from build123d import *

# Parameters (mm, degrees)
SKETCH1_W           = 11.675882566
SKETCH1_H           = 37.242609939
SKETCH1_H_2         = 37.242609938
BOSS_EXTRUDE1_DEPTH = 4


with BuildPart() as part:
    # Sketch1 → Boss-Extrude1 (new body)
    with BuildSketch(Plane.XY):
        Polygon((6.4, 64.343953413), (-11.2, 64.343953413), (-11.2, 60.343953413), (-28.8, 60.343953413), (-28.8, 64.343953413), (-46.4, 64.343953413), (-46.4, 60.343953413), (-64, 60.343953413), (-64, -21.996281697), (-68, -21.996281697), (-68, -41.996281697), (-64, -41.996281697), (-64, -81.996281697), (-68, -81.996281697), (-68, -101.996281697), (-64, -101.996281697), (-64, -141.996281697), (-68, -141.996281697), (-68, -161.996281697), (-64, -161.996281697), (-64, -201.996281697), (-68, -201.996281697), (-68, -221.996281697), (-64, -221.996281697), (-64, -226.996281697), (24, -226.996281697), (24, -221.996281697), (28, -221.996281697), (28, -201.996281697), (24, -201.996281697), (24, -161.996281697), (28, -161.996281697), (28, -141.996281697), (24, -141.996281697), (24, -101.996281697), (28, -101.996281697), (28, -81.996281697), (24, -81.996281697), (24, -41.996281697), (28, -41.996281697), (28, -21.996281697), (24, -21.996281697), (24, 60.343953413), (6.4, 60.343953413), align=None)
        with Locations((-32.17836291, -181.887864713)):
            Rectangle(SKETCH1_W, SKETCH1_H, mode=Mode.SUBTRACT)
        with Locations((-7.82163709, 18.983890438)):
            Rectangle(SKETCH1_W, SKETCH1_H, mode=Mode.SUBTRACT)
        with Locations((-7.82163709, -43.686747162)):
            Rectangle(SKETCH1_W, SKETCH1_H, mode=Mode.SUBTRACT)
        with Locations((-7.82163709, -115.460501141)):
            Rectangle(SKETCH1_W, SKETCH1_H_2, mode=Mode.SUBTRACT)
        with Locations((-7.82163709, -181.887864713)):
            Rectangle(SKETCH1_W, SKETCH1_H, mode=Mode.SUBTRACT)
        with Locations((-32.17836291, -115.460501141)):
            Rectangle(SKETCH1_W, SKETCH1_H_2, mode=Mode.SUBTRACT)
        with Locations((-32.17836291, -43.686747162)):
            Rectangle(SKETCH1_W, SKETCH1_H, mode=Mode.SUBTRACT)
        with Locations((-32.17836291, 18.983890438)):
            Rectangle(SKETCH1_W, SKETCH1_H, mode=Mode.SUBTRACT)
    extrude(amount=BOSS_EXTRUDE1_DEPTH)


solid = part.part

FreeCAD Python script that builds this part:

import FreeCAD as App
import Part
import Sketcher
Q = App.Units.Quantity

doc = App.newDocument("Part")
body = doc.addObject("PartDesign::Body", "Body")

sketch1 = body.newObject("Sketcher::SketchObject", "Sketch")
sketch1.AttachmentSupport = (doc.getObject("XY_Plane"), [""])
sketch1.MapMode = "FlatFace"
sketch1.addGeometry(Part.LineSegment(App.Vector(6.4, 64.3, 0), App.Vector(-11.2, 64.3, 0)), False)
sketch1.addGeometry(Part.LineSegment(App.Vector(-11.2, 64.3, 0), App.Vector(-11.2, 60.3, 0)), False)
sketch1.addGeometry(Part.LineSegment(App.Vector(-11.2, 60.3, 0), App.Vector(-28.8, 60.3, 0)), False)
sketch1.addGeometry(Part.LineSegment(App.Vector(-28.8, 60.3, 0), App.Vector(-28.8, 64.3, 0)), False)
sketch1.addGeometry(Part.LineSegment(App.Vector(-28.8, 64.3, 0), App.Vector(-46.4, 64.3, 0)), False)
sketch1.addGeometry(Part.LineSegment(App.Vector(-46.4, 64.3, 0), App.Vector(-46.4, 60.3, 0)), False)
sketch1.addGeometry(Part.LineSegment(App.Vector(-46.4, 60.3, 0), App.Vector(-64, 60.3, 0)), False)
sketch1.addGeometry(Part.LineSegment(App.Vector(-64, 60.3, 0), App.Vector(-64, -22, 0)), False)
sketch1.addGeometry(Part.LineSegment(App.Vector(-64, -22, 0), App.Vector(-68, -22, 0)), False)
sketch1.addGeometry(Part.LineSegment(App.Vector(-68, -22, 0), App.Vector(-68, -42, 0)), False)
sketch1.addGeometry(Part.LineSegment(App.Vector(-68, -42, 0), App.Vector(-64, -42, 0)), False)
sketch1.addGeometry(Part.LineSegment(App.Vector(-64, -42, 0), App.Vector(-64, -82, 0)), False)
sketch1.addGeometry(Part.LineSegment(App.Vector(-64, -82, 0), App.Vector(-68, -82, 0)), False)
sketch1.addGeometry(Part.LineSegment(App.Vector(-68, -82, 0), App.Vector(-68, -102, 0)), False)
sketch1.addGeometry(Part.LineSegment(App.Vector(-68, -102, 0), App.Vector(-64, -102, 0)), False)
sketch1.addGeometry(Part.LineSegment(App.Vector(-64, -102, 0), App.Vector(-64, -142, 0)), False)
sketch1.addGeometry(Part.LineSegment(App.Vector(-64, -142, 0), App.Vector(-68, -142, 0)), False)
sketch1.addGeometry(Part.LineSegment(App.Vector(-68, -142, 0), App.Vector(-68, -162, 0)), False)
sketch1.addGeometry(Part.LineSegment(App.Vector(-68, -162, 0), App.Vector(-64, -162, 0)), False)
sketch1.addGeometry(Part.LineSegment(App.Vector(-64, -162, 0), App.Vector(-64, -202, 0)), False)
sketch1.addGeometry(Part.LineSegment(App.Vector(-64, -202, 0), App.Vector(-68, -202, 0)), False)
sketch1.addGeometry(Part.LineSegment(App.Vector(-68, -202, 0), App.Vector(-68, -222, 0)), False)
sketch1.addGeometry(Part.LineSegment(App.Vector(-68, -222, 0), App.Vector(-64, -222, 0)), False)
sketch1.addGeometry(Part.LineSegment(App.Vector(-64, -222, 0), App.Vector(-64, -227, 0)), False)
sketch1.addGeometry(Part.LineSegment(App.Vector(-64, -227, 0), App.Vector(24, -227, 0)), False)
sketch1.addGeometry(Part.LineSegment(App.Vector(24, -227, 0), App.Vector(24, -222, 0)), False)
sketch1.addGeometry(Part.LineSegment(App.Vector(24, -222, 0), App.Vector(28, -222, 0)), False)
sketch1.addGeometry(Part.LineSegment(App.Vector(28, -222, 0), App.Vector(28, -202, 0)), False)
sketch1.addGeometry(Part.LineSegment(App.Vector(28, -202, 0), App.Vector(24, -202, 0)), False)
sketch1.addGeometry(Part.LineSegment(App.Vector(24, -202, 0), App.Vector(24, -162, 0)), False)
sketch1.addGeometry(Part.LineSegment(App.Vector(24, -162, 0), App.Vector(28, -162, 0)), False)
sketch1.addGeometry(Part.LineSegment(App.Vector(28, -162, 0), App.Vector(28, -142, 0)), False)
sketch1.addGeometry(Part.LineSegment(App.Vector(28, -142, 0), App.Vector(24, -142, 0)), False)
sketch1.addGeometry(Part.LineSegment(App.Vector(24, -142, 0), App.Vector(24, -102, 0)), False)
sketch1.addGeometry(Part.LineSegment(App.Vector(24, -102, 0), App.Vector(28, -102, 0)), False)
sketch1.addGeometry(Part.LineSegment(App.Vector(28, -102, 0), App.Vector(28, -82, 0)), False)
sketch1.addGeometry(Part.LineSegment(App.Vector(28, -82, 0), App.Vector(24, -82, 0)), False)
sketch1.addGeometry(Part.LineSegment(App.Vector(24, -82, 0), App.Vector(24, -42, 0)), False)
sketch1.addGeometry(Part.LineSegment(App.Vector(24, -42, 0), App.Vector(28, -42, 0)), False)
sketch1.addGeometry(Part.LineSegment(App.Vector(28, -42, 0), App.Vector(28, -22, 0)), False)
sketch1.addGeometry(Part.LineSegment(App.Vector(28, -22, 0), App.Vector(24, -22, 0)), False)
sketch1.addGeometry(Part.LineSegment(App.Vector(24, -22, 0), App.Vector(24, 60.3, 0)), False)
sketch1.addGeometry(Part.LineSegment(App.Vector(24, 60.3, 0), App.Vector(6.4, 60.3, 0)), False)
sketch1.addGeometry(Part.LineSegment(App.Vector(6.4, 60.3, 0), App.Vector(6.4, 64.3, 0)), False)
sketch1.addGeometry(Part.LineSegment(App.Vector(-26.3, -200.5, 0), App.Vector(-38, -200.5, 0)), False)
sketch1.addGeometry(Part.LineSegment(App.Vector(-38, -200.5, 0), App.Vector(-38, -163.3, 0)), False)
sketch1.addGeometry(Part.LineSegment(App.Vector(-38, -163.3, 0), App.Vector(-26.3, -163.3, 0)), False)
sketch1.addGeometry(Part.LineSegment(App.Vector(-26.3, -163.3, 0), App.Vector(-26.3, -200.5, 0)), False)
sketch1.addGeometry(Part.LineSegment(App.Vector(-26.3, -134.1, 0), App.Vector(-38, -134.1, 0)), False)
sketch1.addGeometry(Part.LineSegment(App.Vector(-38, -134.1, 0), App.Vector(-38, -96.8, 0)), False)
sketch1.addGeometry(Part.LineSegment(App.Vector(-38, -96.8, 0), App.Vector(-26.3, -96.8, 0)), False)
sketch1.addGeometry(Part.LineSegment(App.Vector(-26.3, -96.8, 0), App.Vector(-26.3, -134.1, 0)), False)
sketch1.addGeometry(Part.LineSegment(App.Vector(-2, -200.5, 0), App.Vector(-13.7, -200.5, 0)), False)
sketch1.addGeometry(Part.LineSegment(App.Vector(-13.7, -200.5, 0), App.Vector(-13.7, -163.3, 0)), False)
sketch1.addGeometry(Part.LineSegment(App.Vector(-13.7, -163.3, 0), App.Vector(-2, -163.3, 0)), False)
sketch1.addGeometry(Part.LineSegment(App.Vector(-2, -163.3, 0), App.Vector(-2, -200.5, 0)), False)
sketch1.addGeometry(Part.LineSegment(App.Vector(-2, -134.1, 0), App.Vector(-13.7, -134.1, 0)), False)
sketch1.addGeometry(Part.LineSegment(App.Vector(-13.7, -134.1, 0), App.Vector(-13.7, -96.8, 0)), False)
sketch1.addGeometry(Part.LineSegment(App.Vector(-13.7, -96.8, 0), App.Vector(-2, -96.8, 0)), False)
sketch1.addGeometry(Part.LineSegment(App.Vector(-2, -96.8, 0), App.Vector(-2, -134.1, 0)), False)
sketch1.addGeometry(Part.LineSegment(App.Vector(-26.3, -62.3, 0), App.Vector(-38, -62.3, 0)), False)
sketch1.addGeometry(Part.LineSegment(App.Vector(-38, -62.3, 0), App.Vector(-38, -25.1, 0)), False)
sketch1.addGeometry(Part.LineSegment(App.Vector(-38, -25.1, 0), App.Vector(-26.3, -25.1, 0)), False)
sketch1.addGeometry(Part.LineSegment(App.Vector(-26.3, -25.1, 0), App.Vector(-26.3, -62.3, 0)), False)
sketch1.addGeometry(Part.LineSegment(App.Vector(-26.3, 0.4, 0), App.Vector(-38, 0.4, 0)), False)
sketch1.addGeometry(Part.LineSegment(App.Vector(-38, 0.4, 0), App.Vector(-38, 37.6, 0)), False)
sketch1.addGeometry(Part.LineSegment(App.Vector(-38, 37.6, 0), App.Vector(-26.3, 37.6, 0)), False)
sketch1.addGeometry(Part.LineSegment(App.Vector(-26.3, 37.6, 0), App.Vector(-26.3, 0.4, 0)), False)
sketch1.addGeometry(Part.LineSegment(App.Vector(-2, -62.3, 0), App.Vector(-13.7, -62.3, 0)), False)
sketch1.addGeometry(Part.LineSegment(App.Vector(-13.7, -62.3, 0), App.Vector(-13.7, -25.1, 0)), False)
sketch1.addGeometry(Part.LineSegment(App.Vector(-13.7, -25.1, 0), App.Vector(-2, -25.1, 0)), False)
sketch1.addGeometry(Part.LineSegment(App.Vector(-2, -25.1, 0), App.Vector(-2, -62.3, 0)), False)
sketch1.addGeometry(Part.LineSegment(App.Vector(-2, 0.4, 0), App.Vector(-13.7, 0.4, 0)), False)
sketch1.addGeometry(Part.LineSegment(App.Vector(-13.7, 0.4, 0), App.Vector(-13.7, 37.6, 0)), False)
sketch1.addGeometry(Part.LineSegment(App.Vector(-13.7, 37.6, 0), App.Vector(-2, 37.6, 0)), False)
sketch1.addGeometry(Part.LineSegment(App.Vector(-2, 37.6, 0), App.Vector(-2, 0.4, 0)), False)
sketch1.addConstraint(Sketcher.Constraint("Coincident", 0, 2, 1, 1))
sketch1.addConstraint(Sketcher.Constraint("Coincident", 1, 2, 2, 1))
sketch1.addConstraint(Sketcher.Constraint("Coincident", 2, 2, 3, 1))
sketch1.addConstraint(Sketcher.Constraint("Coincident", 3, 2, 4, 1))
sketch1.addConstraint(Sketcher.Constraint("Coincident", 4, 2, 5, 1))
sketch1.addConstraint(Sketcher.Constraint("Coincident", 5, 2, 6, 1))
sketch1.addConstraint(Sketcher.Constraint("Coincident", 6, 2, 7, 1))
sketch1.addConstraint(Sketcher.Constraint("Coincident", 7, 2, 8, 1))
sketch1.addConstraint(Sketcher.Constraint("Coincident", 8, 2, 9, 1))
sketch1.addConstraint(Sketcher.Constraint("Coincident", 9, 2, 10, 1))
sketch1.addConstraint(Sketcher.Constraint("Coincident", 10, 2, 11, 1))
sketch1.addConstraint(Sketcher.Constraint("Coincident", 11, 2, 12, 1))
sketch1.addConstraint(Sketcher.Constraint("Coincident", 12, 2, 13, 1))
sketch1.addConstraint(Sketcher.Constraint("Coincident", 13, 2, 14, 1))
sketch1.addConstraint(Sketcher.Constraint("Coincident", 14, 2, 15, 1))
sketch1.addConstraint(Sketcher.Constraint("Coincident", 15, 2, 16, 1))
sketch1.addConstraint(Sketcher.Constraint("Coincident", 16, 2, 17, 1))
sketch1.addConstraint(Sketcher.Constraint("Coincident", 17, 2, 18, 1))
sketch1.addConstraint(Sketcher.Constraint("Coincident", 18, 2, 19, 1))
sketch1.addConstraint(Sketcher.Constraint("Coincident", 19, 2, 20, 1))
sketch1.addConstraint(Sketcher.Constraint("Coincident", 20, 2, 21, 1))
sketch1.addConstraint(Sketcher.Constraint("Coincident", 21, 2, 22, 1))
sketch1.addConstraint(Sketcher.Constraint("Coincident", 22, 2, 23, 1))
sketch1.addConstraint(Sketcher.Constraint("Coincident", 23, 2, 24, 1))
sketch1.addConstraint(Sketcher.Constraint("Coincident", 24, 2, 25, 1))
sketch1.addConstraint(Sketcher.Constraint("Coincident", 25, 2, 26, 1))
sketch1.addConstraint(Sketcher.Constraint("Coincident", 26, 2, 27, 1))
sketch1.addConstraint(Sketcher.Constraint("Coincident", 27, 2, 28, 1))
sketch1.addConstraint(Sketcher.Constraint("Coincident", 28, 2, 29, 1))
sketch1.addConstraint(Sketcher.Constraint("Coincident", 29, 2, 30, 1))
sketch1.addConstraint(Sketcher.Constraint("Coincident", 30, 2, 31, 1))
sketch1.addConstraint(Sketcher.Constraint("Coincident", 31, 2, 32, 1))
sketch1.addConstraint(Sketcher.Constraint("Coincident", 32, 2, 33, 1))
sketch1.addConstraint(Sketcher.Constraint("Coincident", 33, 2, 34, 1))
sketch1.addConstraint(Sketcher.Constraint("Coincident", 34, 2, 35, 1))
sketch1.addConstraint(Sketcher.Constraint("Coincident", 35, 2, 36, 1))
sketch1.addConstraint(Sketcher.Constraint("Coincident", 36, 2, 37, 1))
sketch1.addConstraint(Sketcher.Constraint("Coincident", 37, 2, 38, 1))
sketch1.addConstraint(Sketcher.Constraint("Coincident", 38, 2, 39, 1))
sketch1.addConstraint(Sketcher.Constraint("Coincident", 39, 2, 40, 1))
sketch1.addConstraint(Sketcher.Constraint("Coincident", 40, 2, 41, 1))
sketch1.addConstraint(Sketcher.Constraint("Coincident", 41, 2, 42, 1))
sketch1.addConstraint(Sketcher.Constraint("Coincident", 42, 2, 43, 1))
sketch1.addConstraint(Sketcher.Constraint("Coincident", 43, 2, 0, 1))
sketch1.addConstraint(Sketcher.Constraint("Coincident", 44, 2, 45, 1))
sketch1.addConstraint(Sketcher.Constraint("Coincident", 45, 2, 46, 1))
sketch1.addConstraint(Sketcher.Constraint("Coincident", 46, 2, 47, 1))
sketch1.addConstraint(Sketcher.Constraint("Coincident", 47, 2, 44, 1))
sketch1.addConstraint(Sketcher.Constraint("Coincident", 48, 2, 49, 1))
sketch1.addConstraint(Sketcher.Constraint("Coincident", 49, 2, 50, 1))
sketch1.addConstraint(Sketcher.Constraint("Coincident", 50, 2, 51, 1))
sketch1.addConstraint(Sketcher.Constraint("Coincident", 51, 2, 48, 1))
sketch1.addConstraint(Sketcher.Constraint("Coincident", 52, 2, 53, 1))
sketch1.addConstraint(Sketcher.Constraint("Coincident", 53, 2, 54, 1))
sketch1.addConstraint(Sketcher.Constraint("Coincident", 54, 2, 55, 1))
sketch1.addConstraint(Sketcher.Constraint("Coincident", 55, 2, 52, 1))
sketch1.addConstraint(Sketcher.Constraint("Coincident", 56, 2, 57, 1))
sketch1.addConstraint(Sketcher.Constraint("Coincident", 57, 2, 58, 1))
sketch1.addConstraint(Sketcher.Constraint("Coincident", 58, 2, 59, 1))
sketch1.addConstraint(Sketcher.Constraint("Coincident", 59, 2, 56, 1))
sketch1.addConstraint(Sketcher.Constraint("Coincident", 60, 2, 61, 1))
sketch1.addConstraint(Sketcher.Constraint("Coincident", 61, 2, 62, 1))
sketch1.addConstraint(Sketcher.Constraint("Coincident", 62, 2, 63, 1))
sketch1.addConstraint(Sketcher.Constraint("Coincident", 63, 2, 60, 1))
sketch1.addConstraint(Sketcher.Constraint("Coincident", 64, 2, 65, 1))
sketch1.addConstraint(Sketcher.Constraint("Coincident", 65, 2, 66, 1))
sketch1.addConstraint(Sketcher.Constraint("Coincident", 66, 2, 67, 1))
sketch1.addConstraint(Sketcher.Constraint("Coincident", 67, 2, 64, 1))
sketch1.addConstraint(Sketcher.Constraint("Coincident", 68, 2, 69, 1))
sketch1.addConstraint(Sketcher.Constraint("Coincident", 69, 2, 70, 1))
sketch1.addConstraint(Sketcher.Constraint("Coincident", 70, 2, 71, 1))
sketch1.addConstraint(Sketcher.Constraint("Coincident", 71, 2, 68, 1))
sketch1.addConstraint(Sketcher.Constraint("Coincident", 72, 2, 73, 1))
sketch1.addConstraint(Sketcher.Constraint("Coincident", 73, 2, 74, 1))
sketch1.addConstraint(Sketcher.Constraint("Coincident", 74, 2, 75, 1))
sketch1.addConstraint(Sketcher.Constraint("Coincident", 75, 2, 72, 1))
sketch1.addConstraint(Sketcher.Constraint("Horizontal", 0))
sketch1.addConstraint(Sketcher.Constraint("Vertical", 1))
sketch1.addConstraint(Sketcher.Constraint("Horizontal", 2))
sketch1.addConstraint(Sketcher.Constraint("Vertical", 3))
sketch1.addConstraint(Sketcher.Constraint("Horizontal", 4))
sketch1.addConstraint(Sketcher.Constraint("Vertical", 5))
sketch1.addConstraint(Sketcher.Constraint("Horizontal", 6))
sketch1.addConstraint(Sketcher.Constraint("Vertical", 7))
sketch1.addConstraint(Sketcher.Constraint("Horizontal", 8))
sketch1.addConstraint(Sketcher.Constraint("Vertical", 9))
sketch1.addConstraint(Sketcher.Constraint("Horizontal", 10))
sketch1.addConstraint(Sketcher.Constraint("Vertical", 11))
sketch1.addConstraint(Sketcher.Constraint("Horizontal", 12))
sketch1.addConstraint(Sketcher.Constraint("Vertical", 13))
sketch1.addConstraint(Sketcher.Constraint("Horizontal", 14))
sketch1.addConstraint(Sketcher.Constraint("Vertical", 15))
sketch1.addConstraint(Sketcher.Constraint("Horizontal", 16))
sketch1.addConstraint(Sketcher.Constraint("Vertical", 17))
sketch1.addConstraint(Sketcher.Constraint("Horizontal", 18))
sketch1.addConstraint(Sketcher.Constraint("Vertical", 19))
sketch1.addConstraint(Sketcher.Constraint("Horizontal", 20))
sketch1.addConstraint(Sketcher.Constraint("Vertical", 21))
sketch1.addConstraint(Sketcher.Constraint("Horizontal", 22))
sketch1.addConstraint(Sketcher.Constraint("Vertical", 23))
sketch1.addConstraint(Sketcher.Constraint("Horizontal", 24))
sketch1.addConstraint(Sketcher.Constraint("Vertical", 25))
sketch1.addConstraint(Sketcher.Constraint("Horizontal", 26))
sketch1.addConstraint(Sketcher.Constraint("Vertical", 27))
sketch1.addConstraint(Sketcher.Constraint("Horizontal", 28))
sketch1.addConstraint(Sketcher.Constraint("Vertical", 29))
sketch1.addConstraint(Sketcher.Constraint("Horizontal", 30))
sketch1.addConstraint(Sketcher.Constraint("Vertical", 31))
sketch1.addConstraint(Sketcher.Constraint("Horizontal", 32))
sketch1.addConstraint(Sketcher.Constraint("Vertical", 33))
sketch1.addConstraint(Sketcher.Constraint("Horizontal", 34))
sketch1.addConstraint(Sketcher.Constraint("Vertical", 35))
sketch1.addConstraint(Sketcher.Constraint("Horizontal", 36))
sketch1.addConstraint(Sketcher.Constraint("Vertical", 37))
sketch1.addConstraint(Sketcher.Constraint("Horizontal", 38))
sketch1.addConstraint(Sketcher.Constraint("Vertical", 39))
sketch1.addConstraint(Sketcher.Constraint("Horizontal", 40))
sketch1.addConstraint(Sketcher.Constraint("Vertical", 41))
sketch1.addConstraint(Sketcher.Constraint("Horizontal", 42))
sketch1.addConstraint(Sketcher.Constraint("Vertical", 43))
sketch1.addConstraint(Sketcher.Constraint("Horizontal", 44))
sketch1.addConstraint(Sketcher.Constraint("Vertical", 45))
sketch1.addConstraint(Sketcher.Constraint("Horizontal", 46))
sketch1.addConstraint(Sketcher.Constraint("Vertical", 47))
sketch1.addConstraint(Sketcher.Constraint("Horizontal", 48))
sketch1.addConstraint(Sketcher.Constraint("Vertical", 49))
sketch1.addConstraint(Sketcher.Constraint("Horizontal", 50))
sketch1.addConstraint(Sketcher.Constraint("Vertical", 51))
sketch1.addConstraint(Sketcher.Constraint("Horizontal", 52))
sketch1.addConstraint(Sketcher.Constraint("Vertical", 53))
sketch1.addConstraint(Sketcher.Constraint("Horizontal", 54))
sketch1.addConstraint(Sketcher.Constraint("Vertical", 55))
sketch1.addConstraint(Sketcher.Constraint("Horizontal", 56))
sketch1.addConstraint(Sketcher.Constraint("Vertical", 57))
sketch1.addConstraint(Sketcher.Constraint("Horizontal", 58))
sketch1.addConstraint(Sketcher.Constraint("Vertical", 59))
sketch1.addConstraint(Sketcher.Constraint("Horizontal", 60))
sketch1.addConstraint(Sketcher.Constraint("Vertical", 61))
sketch1.addConstraint(Sketcher.Constraint("Horizontal", 62))
sketch1.addConstraint(Sketcher.Constraint("Vertical", 63))
sketch1.addConstraint(Sketcher.Constraint("Horizontal", 64))
sketch1.addConstraint(Sketcher.Constraint("Vertical", 65))
sketch1.addConstraint(Sketcher.Constraint("Horizontal", 66))
sketch1.addConstraint(Sketcher.Constraint("Vertical", 67))
sketch1.addConstraint(Sketcher.Constraint("Horizontal", 68))
sketch1.addConstraint(Sketcher.Constraint("Vertical", 69))
sketch1.addConstraint(Sketcher.Constraint("Horizontal", 70))
sketch1.addConstraint(Sketcher.Constraint("Vertical", 71))
sketch1.addConstraint(Sketcher.Constraint("Horizontal", 72))
sketch1.addConstraint(Sketcher.Constraint("Vertical", 73))
sketch1.addConstraint(Sketcher.Constraint("Horizontal", 74))
sketch1.addConstraint(Sketcher.Constraint("Vertical", 75))
sketch1.addConstraint(Sketcher.Constraint("Horizontal", 0, 2, 3, 2))
sketch1.addConstraint(Sketcher.Constraint("Horizontal", 2, 2, 5, 2))
sketch1.addConstraint(Sketcher.Constraint("Horizontal", 22, 2, 25, 2))
sketch1.addConstraint(Sketcher.Constraint("Horizontal", 20, 2, 27, 2))
sketch1.addConstraint(Sketcher.Constraint("Horizontal", 18, 2, 29, 2))
sketch1.addConstraint(Sketcher.Constraint("Horizontal", 16, 2, 31, 2))
sketch1.addConstraint(Sketcher.Constraint("Horizontal", 14, 2, 33, 2))
sketch1.addConstraint(Sketcher.Constraint("Horizontal", 12, 2, 35, 2))
sketch1.addConstraint(Sketcher.Constraint("Horizontal", 10, 2, 37, 2))
sketch1.addConstraint(Sketcher.Constraint("Horizontal", 8, 2, 39, 2))
sketch1.addConstraint(Sketcher.Constraint("Horizontal", 6, 2, 41, 2))
sketch1.addConstraint(Sketcher.Constraint("Horizontal", 47, 2, 52, 2))
sketch1.addConstraint(Sketcher.Constraint("Horizontal", 46, 2, 53, 2))
sketch1.addConstraint(Sketcher.Constraint("Horizontal", 51, 2, 56, 2))
sketch1.addConstraint(Sketcher.Constraint("Horizontal", 50, 2, 57, 2))
sketch1.addConstraint(Sketcher.Constraint("Horizontal", 63, 2, 68, 2))
sketch1.addConstraint(Sketcher.Constraint("Horizontal", 62, 2, 69, 2))
sketch1.addConstraint(Sketcher.Constraint("Horizontal", 67, 2, 72, 2))
sketch1.addConstraint(Sketcher.Constraint("Horizontal", 66, 2, 73, 2))
sketch1.addConstraint(Sketcher.Constraint("Vertical", 7, 2, 10, 2))
sketch1.addConstraint(Sketcher.Constraint("Vertical", 9, 2, 12, 2))
sketch1.addConstraint(Sketcher.Constraint("Vertical", 11, 2, 14, 2))
sketch1.addConstraint(Sketcher.Constraint("Vertical", 13, 2, 16, 2))
sketch1.addConstraint(Sketcher.Constraint("Vertical", 15, 2, 18, 2))
sketch1.addConstraint(Sketcher.Constraint("Vertical", 17, 2, 20, 2))
sketch1.addConstraint(Sketcher.Constraint("Vertical", 19, 2, 22, 2))
sketch1.addConstraint(Sketcher.Constraint("Vertical", 25, 2, 28, 2))
sketch1.addConstraint(Sketcher.Constraint("Vertical", 27, 2, 30, 2))
sketch1.addConstraint(Sketcher.Constraint("Vertical", 29, 2, 32, 2))
sketch1.addConstraint(Sketcher.Constraint("Vertical", 31, 2, 34, 2))
sketch1.addConstraint(Sketcher.Constraint("Vertical", 33, 2, 36, 2))
sketch1.addConstraint(Sketcher.Constraint("Vertical", 35, 2, 38, 2))
sketch1.addConstraint(Sketcher.Constraint("Vertical", 37, 2, 40, 2))
sketch1.addConstraint(Sketcher.Constraint("Vertical", 45, 2, 48, 2))
sketch1.addConstraint(Sketcher.Constraint("Vertical", 47, 2, 50, 2))
sketch1.addConstraint(Sketcher.Constraint("Vertical", 53, 2, 56, 2))
sketch1.addConstraint(Sketcher.Constraint("Vertical", 55, 2, 58, 2))
sketch1.addConstraint(Sketcher.Constraint("Vertical", 49, 2, 60, 2))
sketch1.addConstraint(Sketcher.Constraint("Vertical", 51, 2, 62, 2))
sketch1.addConstraint(Sketcher.Constraint("Vertical", 61, 2, 64, 2))
sketch1.addConstraint(Sketcher.Constraint("Vertical", 63, 2, 66, 2))
sketch1.addConstraint(Sketcher.Constraint("Vertical", 57, 2, 68, 2))
sketch1.addConstraint(Sketcher.Constraint("Vertical", 59, 2, 70, 2))
sketch1.addConstraint(Sketcher.Constraint("Vertical", 69, 2, 72, 2))
sketch1.addConstraint(Sketcher.Constraint("Vertical", 71, 2, 74, 2))
sketch1.addConstraint(Sketcher.Constraint("Equal", 0, 2))
sketch1.addConstraint(Sketcher.Constraint("Equal", 2, 4))
sketch1.addConstraint(Sketcher.Constraint("Equal", 4, 6))
sketch1.addConstraint(Sketcher.Constraint("Equal", 22, 26))
sketch1.addConstraint(Sketcher.Constraint("Equal", 6, 42))
sketch1.addConstraint(Sketcher.Constraint("Equal", 50, 52))
sketch1.addConstraint(Sketcher.Constraint("Equal", 40, 1))
sketch1.addConstraint(Sketcher.Constraint("Equal", 9, 13))
sketch1.addConstraint(Sketcher.Constraint("Equal", 11, 15))
sketch1.addConstraint(Sketcher.Constraint("Equal", 13, 17))
sketch1.addConstraint(Sketcher.Constraint("Equal", 15, 19))
sketch1.addConstraint(Sketcher.Constraint("Equal", 17, 21))
sketch1.addConstraint(Sketcher.Constraint("Equal", 47, 49))
sketch1.addConstraint(Sketcher.Constraint("Equal", 59, 61))
sketch1.addConstraint(Sketcher.Constraint("Equal", 63, 65))
sketch1.addConstraint(Sketcher.Constraint("DistanceX", 8, 2, 8, 1, Q("4 mm")))
sketch1.addConstraint(Sketcher.Constraint("DistanceX", 24, 1, 24, 2, Q("88 mm")))
sketch1.addConstraint(Sketcher.Constraint("DistanceY", 9, 2, 9, 1, Q("20 mm")))
sketch1.addConstraint(Sketcher.Constraint("DistanceY", 11, 2, 11, 1, Q("40 mm")))
sketch1.addConstraint(Sketcher.Constraint("DistanceY", 23, 2, 23, 1, Q("5 mm")))
sketch1.addConstraint(Sketcher.Constraint("DistanceX", 6, 2, -1, 1, Q("64 mm")))
sketch1.addConstraint(Sketcher.Constraint("DistanceY", 45, 1, 45, 2, Q("37.24261 mm")))
sketch1.addConstraint(Sketcher.Constraint("DistanceX", 44, 2, 44, 1, Q("11.675883 mm")))
sketch1.addConstraint(Sketcher.Constraint("DistanceY", 7, 2, 7, 1, Q("82.340235 mm")))
sketch1.addConstraint(Sketcher.Constraint("DistanceY", 7, 2, -1, 1, Q("21.996282 mm")))
sketch1.addConstraint(Sketcher.Constraint("DistanceY", 44, 2, -1, 1, Q("200.50917 mm")))
sketch1.addConstraint(Sketcher.Constraint("DistanceX", 46, 2, -1, 1, Q("26.340422 mm")))
sketch1.addConstraint(Sketcher.Constraint("DistanceX", 52, 2, -1, 1, Q("13.659578 mm")))
sketch1.addConstraint(Sketcher.Constraint("DistanceY", 48, 2, -1, 1, Q("134.081806 mm")))
sketch1.addConstraint(Sketcher.Constraint("DistanceY", 60, 2, -1, 1, Q("62.308052 mm")))
sketch1.addConstraint(Sketcher.Constraint("DistanceY", -1, 1, 64, 2, Q("0.362585 mm")))
pad1 = body.newObject("PartDesign::Pad", "Pad")
pad1.Profile = sketch1
pad1.Length = 4

doc.recompute()
